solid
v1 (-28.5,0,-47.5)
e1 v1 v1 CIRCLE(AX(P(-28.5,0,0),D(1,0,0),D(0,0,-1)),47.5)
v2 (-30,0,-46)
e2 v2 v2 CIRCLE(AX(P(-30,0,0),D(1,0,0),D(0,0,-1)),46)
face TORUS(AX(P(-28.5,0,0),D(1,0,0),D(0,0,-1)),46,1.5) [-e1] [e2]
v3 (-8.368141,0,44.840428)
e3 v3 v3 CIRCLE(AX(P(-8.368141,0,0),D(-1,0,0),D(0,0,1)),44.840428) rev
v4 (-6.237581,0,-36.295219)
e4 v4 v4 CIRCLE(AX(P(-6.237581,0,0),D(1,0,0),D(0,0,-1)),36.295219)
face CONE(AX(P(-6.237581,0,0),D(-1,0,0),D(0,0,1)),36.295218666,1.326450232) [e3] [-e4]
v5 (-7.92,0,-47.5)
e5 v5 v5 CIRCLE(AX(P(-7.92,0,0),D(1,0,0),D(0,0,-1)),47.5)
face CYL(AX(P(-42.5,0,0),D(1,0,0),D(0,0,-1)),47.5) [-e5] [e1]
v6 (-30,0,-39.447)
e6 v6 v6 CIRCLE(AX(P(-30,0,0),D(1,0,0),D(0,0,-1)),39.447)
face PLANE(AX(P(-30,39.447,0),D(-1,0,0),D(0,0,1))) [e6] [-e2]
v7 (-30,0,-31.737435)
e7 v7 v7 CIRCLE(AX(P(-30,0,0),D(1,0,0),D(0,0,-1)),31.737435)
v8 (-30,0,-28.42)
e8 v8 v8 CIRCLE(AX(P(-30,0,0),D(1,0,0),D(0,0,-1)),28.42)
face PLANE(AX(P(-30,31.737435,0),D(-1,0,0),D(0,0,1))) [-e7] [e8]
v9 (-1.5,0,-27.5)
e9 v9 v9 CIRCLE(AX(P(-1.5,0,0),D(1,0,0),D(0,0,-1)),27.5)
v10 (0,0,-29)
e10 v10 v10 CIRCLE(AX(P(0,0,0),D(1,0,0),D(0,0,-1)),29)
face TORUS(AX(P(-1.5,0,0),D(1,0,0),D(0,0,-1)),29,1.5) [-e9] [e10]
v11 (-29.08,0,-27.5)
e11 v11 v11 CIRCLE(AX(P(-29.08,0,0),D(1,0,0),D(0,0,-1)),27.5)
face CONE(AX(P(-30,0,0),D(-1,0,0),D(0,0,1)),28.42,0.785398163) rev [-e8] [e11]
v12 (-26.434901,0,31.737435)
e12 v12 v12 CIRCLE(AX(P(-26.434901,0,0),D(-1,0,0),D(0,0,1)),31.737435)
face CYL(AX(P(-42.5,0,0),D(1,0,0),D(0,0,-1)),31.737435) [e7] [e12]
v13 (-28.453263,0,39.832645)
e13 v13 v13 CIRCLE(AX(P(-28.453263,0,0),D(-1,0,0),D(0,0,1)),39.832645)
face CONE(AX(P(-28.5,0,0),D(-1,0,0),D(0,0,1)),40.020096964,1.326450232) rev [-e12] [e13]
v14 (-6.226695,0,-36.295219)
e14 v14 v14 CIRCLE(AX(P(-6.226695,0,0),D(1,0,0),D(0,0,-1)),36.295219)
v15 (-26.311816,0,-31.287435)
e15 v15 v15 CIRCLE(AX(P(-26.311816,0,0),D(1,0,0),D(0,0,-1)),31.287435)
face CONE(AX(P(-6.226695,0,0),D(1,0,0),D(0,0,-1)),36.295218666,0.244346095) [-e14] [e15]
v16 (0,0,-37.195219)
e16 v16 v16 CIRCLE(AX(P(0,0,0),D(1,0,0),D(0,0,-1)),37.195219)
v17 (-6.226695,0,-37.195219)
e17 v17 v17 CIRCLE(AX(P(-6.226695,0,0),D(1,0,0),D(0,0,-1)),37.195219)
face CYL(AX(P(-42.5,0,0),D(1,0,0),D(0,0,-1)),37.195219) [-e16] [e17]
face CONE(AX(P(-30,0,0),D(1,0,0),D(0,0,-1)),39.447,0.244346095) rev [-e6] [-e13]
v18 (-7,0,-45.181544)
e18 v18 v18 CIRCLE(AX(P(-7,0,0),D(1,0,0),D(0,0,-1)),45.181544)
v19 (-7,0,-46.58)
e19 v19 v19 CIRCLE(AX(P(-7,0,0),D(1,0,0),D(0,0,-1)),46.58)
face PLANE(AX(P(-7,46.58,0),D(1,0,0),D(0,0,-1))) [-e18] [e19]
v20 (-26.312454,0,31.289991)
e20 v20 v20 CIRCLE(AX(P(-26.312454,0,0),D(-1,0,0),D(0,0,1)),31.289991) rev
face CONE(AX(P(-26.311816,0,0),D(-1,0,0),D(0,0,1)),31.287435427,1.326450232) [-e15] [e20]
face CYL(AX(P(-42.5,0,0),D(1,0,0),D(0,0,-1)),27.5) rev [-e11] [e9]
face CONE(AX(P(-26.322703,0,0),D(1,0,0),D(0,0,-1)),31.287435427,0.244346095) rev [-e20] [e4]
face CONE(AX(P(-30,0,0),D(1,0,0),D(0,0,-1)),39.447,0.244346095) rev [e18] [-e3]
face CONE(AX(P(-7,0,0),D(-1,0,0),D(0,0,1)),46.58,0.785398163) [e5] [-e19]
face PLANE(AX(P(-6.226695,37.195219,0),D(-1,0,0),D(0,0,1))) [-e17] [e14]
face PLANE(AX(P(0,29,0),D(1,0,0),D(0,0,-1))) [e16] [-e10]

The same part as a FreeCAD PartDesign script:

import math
import FreeCAD as App
import Part
import Sketcher
from FreeCAD import Vector
Q = App.Units.Quantity

doc = App.newDocument("Part")
body = doc.addObject("PartDesign::Body", "Body")

sketch1 = body.newObject("Sketcher::SketchObject", "Sketch")
sketch1.AttachmentSupport = (doc.getObject("XY_Plane"), [""])
sketch1.MapMode = "FlatFace"
sketch1.addGeometry([
    Part.LineSegment(Vector(-30, 39.4, 0), Vector(-7, 45.2, 0)),
    Part.LineSegment(Vector(-7, 45.2, 0), Vector(-7, 46.6, 0)),
    Part.LineSegment(Vector(-7, 46.6, 0), Vector(-7.9, 47.5, 0)),
    Part.LineSegment(Vector(-7.9, 47.5, 0), Vector(-28.5, 47.5, 0)),
    Part.ArcOfCircle(Part.Circle(Vector(-28.5, 46, 0), Vector(0, 0, 1), 1.5), math.radians(90), math.radians(180)),
    Part.LineSegment(Vector(-30, 46, 0), Vector(-30, 39.4, 0)),
], False)
sketch1.addConstraint([
    Sketcher.Constraint("Coincident", 0, 2, 1, 1),
    Sketcher.Constraint("Coincident", 1, 2, 2, 1),
    Sketcher.Constraint("Coincident", 2, 2, 3, 1),
    Sketcher.Constraint("Tangent", 3, 2, 4, 1),
    Sketcher.Constraint("Tangent", 4, 2, 5, 1),
    Sketcher.Constraint("Coincident", 5, 2, 0, 1),
    Sketcher.Constraint("Vertical", 1),
    Sketcher.Constraint("Horizontal", 3),
    Sketcher.Constraint("Vertical", 5),
    Sketcher.Constraint("Radius", 4, Q("1.5 mm")),
    Sketcher.Constraint("Angle", 0, Q("14 deg")),
    Sketcher.Constraint("Angle", 2, Q("135 deg")),
    Sketcher.Constraint("DistanceY", -1, 1, 4, 3, Q("46 mm")),
    Sketcher.Constraint("DistanceX", 0, 2, -1, 1, Q("7 mm")),
    Sketcher.Constraint("DistanceX", 4, 2, -1, 1, Q("30 mm")),
    Sketcher.Constraint("DistanceX", 3, 2, 3, 1, Q("20.58 mm")),
    Sketcher.Constraint("DistanceY", 5, 2, 5, 1, Q("6.553 mm")),
])
revolution = body.newObject("PartDesign::Revolution", "Revolution")
revolution.Profile = sketch1
revolution.ReferenceAxis = (sketch1, ["H_Axis"])
revolution.Angle = 360

sketch2 = body.newObject("Sketcher::SketchObject", "Sketch001")
sketch2.AttachmentSupport = (doc.getObject("XY_Plane"), [""])
sketch2.MapMode = "FlatFace"
sketch2.addGeometry([
    Part.LineSegment(Vector(-8, 45, 0), Vector(-28, 40, 0)),
    Part.LineSegment(Vector(-28, 40, 0), Vector(-26, 31, 0)),
    Part.LineSegment(Vector(-26, 31, 0), Vector(-6, 36, 0)),
    Part.LineSegment(Vector(-6, 36, 0), Vector(-8, 45, 0)),
], False)
sketch2.addConstraint([
    Sketcher.Constraint("Coincident", 0, 2, 1, 1),
    Sketcher.Constraint("Coincident", 1, 2, 2, 1),
    Sketcher.Constraint("Coincident", 2, 2, 3, 1),
    Sketcher.Constraint("Coincident", 3, 2, 0, 1),
    Sketcher.Constraint("Perpendicular", 0, 1),
    Sketcher.Constraint("Perpendicular", 1, 2),
    Sketcher.Constraint("Perpendicular", 2, 3),
    Sketcher.Constraint("Angle", 0, Q("-166 deg")),
    Sketcher.Constraint("Distance", 1, Q("9 mm")),
    Sketcher.Constraint("Distance", 0, Q("20.7 mm")),
    Sketcher.Constraint("DistanceX", 0, 2, -1, 1, Q("28.5 mm")),
    Sketcher.Constraint("DistanceY", -1, 1, 2, 2, Q("36.295219 mm")),
])
revolution2 = body.newObject("PartDesign::Revolution", "Revolution001")
revolution2.Profile = sketch2
revolution2.ReferenceAxis = (sketch2, ["H_Axis"])
revolution2.Angle = 360

sketch3 = body.newObject("Sketcher::SketchObject", "Sketch002")
sketch3.AttachmentSupport = (doc.getObject("XY_Plane"), [""])
sketch3.MapMode = "FlatFace"
sketch3.addGeometry([
    Part.LineSegment(Vector(-26.42, 31.74, 0), Vector(-30, 31.74, 0)),
    Part.LineSegment(Vector(-30, 31.74, 0), Vector(-30, 28.42, 0)),
    Part.LineSegment(Vector(-30, 28.42, 0), Vector(-29.08, 27.5, 0)),
    Part.LineSegment(Vector(-29.08, 27.5, 0), Vector(-1.5, 27.5, 0)),
    Part.ArcOfCircle(Part.Circle(Vector(-1.5, 29, 0), Vector(0, 0, 1), 1.5), math.radians(-90), math.radians(0)),
    Part.LineSegment(Vector(0, 29, 0), Vector(0, 37.2, 0)),
    Part.LineSegment(Vector(0, 37.2, 0), Vector(-6.23, 37.2, 0)),
    Part.LineSegment(Vector(-6.23, 37.2, 0), Vector(-6.23, 36.3, 0)),
    Part.LineSegment(Vector(-6.23, 36.3, 0), Vector(-26.31, 31.29, 0)),
    Part.LineSegment(Vector(-26.31, 31.29, 0), Vector(-26.42, 31.74, 0)),
], False)
sketch3.addConstraint([
    Sketcher.Constraint("Coincident", 0, 2, 1, 1),
    Sketcher.Constraint("Coincident", 1, 2, 2, 1),
    Sketcher.Constraint("Coincident", 2, 2, 3, 1),
    Sketcher.Constraint("Tangent", 3, 2, 4, 1),
    Sketcher.Constraint("Tangent", 4, 2, 5, 1),
    Sketcher.Constraint("Coincident", 5, 2, 6, 1),
    Sketcher.Constraint("Coincident", 6, 2, 7, 1),
    Sketcher.Constraint("Coincident", 7, 2, 8, 1),
    Sketcher.Constraint("Coincident", 8, 2, 9, 1),
    Sketcher.Constraint("Coincident", 9, 2, 0, 1),
    Sketcher.Constraint("Horizontal", 0),
    Sketcher.Constraint("Vertical", 1),
    Sketcher.Constraint("Horizontal", 3),
    Sketcher.Constraint("Vertical", 5),
    Sketcher.Constraint("Horizontal", 6),
    Sketcher.Constraint("Vertical", 7),
    Sketcher.Constraint("PointOnObject", 4, 2, -2),
    Sketcher.Constraint("Perpendicular", 8, 9),
    Sketcher.Constraint("Radius", 4, Q("1.5 mm")),
    Sketcher.Constraint("Angle", 2, Q("-45 deg")),
    Sketcher.Constraint("Angle", 8, Q("-166 deg")),
    Sketcher.Constraint("DistanceY", 7, 2, 7, 1, Q("0.9 mm")),
    Sketcher.Constraint("DistanceY", -1, 1, 4, 3, Q("29 mm")),
    Sketcher.Constraint("DistanceX", 0, 2, -1, 1, Q("30 mm")),
    Sketcher.Constraint("Distance", 8, Q("20.7 mm")),
    Sketcher.Constraint("DistanceX", 3, 1, 3, 2, Q("27.58 mm")),
    Sketcher.Constraint("DistanceY", 8, 2, 0, 2, Q("0.45 mm")),
    Sketcher.Constraint("DistanceY", 5, 1, 5, 2, Q("8.195219 mm")),
    Sketcher.Constraint("DistanceX", 0, 2, 0, 1, Q("3.575986 mm")),
])
revolution3 = body.newObject("PartDesign::Revolution", "Revolution002")
revolution3.Profile = sketch3
revolution3.ReferenceAxis = (sketch3, ["H_Axis"])
revolution3.Angle = 360

doc.recompute()
